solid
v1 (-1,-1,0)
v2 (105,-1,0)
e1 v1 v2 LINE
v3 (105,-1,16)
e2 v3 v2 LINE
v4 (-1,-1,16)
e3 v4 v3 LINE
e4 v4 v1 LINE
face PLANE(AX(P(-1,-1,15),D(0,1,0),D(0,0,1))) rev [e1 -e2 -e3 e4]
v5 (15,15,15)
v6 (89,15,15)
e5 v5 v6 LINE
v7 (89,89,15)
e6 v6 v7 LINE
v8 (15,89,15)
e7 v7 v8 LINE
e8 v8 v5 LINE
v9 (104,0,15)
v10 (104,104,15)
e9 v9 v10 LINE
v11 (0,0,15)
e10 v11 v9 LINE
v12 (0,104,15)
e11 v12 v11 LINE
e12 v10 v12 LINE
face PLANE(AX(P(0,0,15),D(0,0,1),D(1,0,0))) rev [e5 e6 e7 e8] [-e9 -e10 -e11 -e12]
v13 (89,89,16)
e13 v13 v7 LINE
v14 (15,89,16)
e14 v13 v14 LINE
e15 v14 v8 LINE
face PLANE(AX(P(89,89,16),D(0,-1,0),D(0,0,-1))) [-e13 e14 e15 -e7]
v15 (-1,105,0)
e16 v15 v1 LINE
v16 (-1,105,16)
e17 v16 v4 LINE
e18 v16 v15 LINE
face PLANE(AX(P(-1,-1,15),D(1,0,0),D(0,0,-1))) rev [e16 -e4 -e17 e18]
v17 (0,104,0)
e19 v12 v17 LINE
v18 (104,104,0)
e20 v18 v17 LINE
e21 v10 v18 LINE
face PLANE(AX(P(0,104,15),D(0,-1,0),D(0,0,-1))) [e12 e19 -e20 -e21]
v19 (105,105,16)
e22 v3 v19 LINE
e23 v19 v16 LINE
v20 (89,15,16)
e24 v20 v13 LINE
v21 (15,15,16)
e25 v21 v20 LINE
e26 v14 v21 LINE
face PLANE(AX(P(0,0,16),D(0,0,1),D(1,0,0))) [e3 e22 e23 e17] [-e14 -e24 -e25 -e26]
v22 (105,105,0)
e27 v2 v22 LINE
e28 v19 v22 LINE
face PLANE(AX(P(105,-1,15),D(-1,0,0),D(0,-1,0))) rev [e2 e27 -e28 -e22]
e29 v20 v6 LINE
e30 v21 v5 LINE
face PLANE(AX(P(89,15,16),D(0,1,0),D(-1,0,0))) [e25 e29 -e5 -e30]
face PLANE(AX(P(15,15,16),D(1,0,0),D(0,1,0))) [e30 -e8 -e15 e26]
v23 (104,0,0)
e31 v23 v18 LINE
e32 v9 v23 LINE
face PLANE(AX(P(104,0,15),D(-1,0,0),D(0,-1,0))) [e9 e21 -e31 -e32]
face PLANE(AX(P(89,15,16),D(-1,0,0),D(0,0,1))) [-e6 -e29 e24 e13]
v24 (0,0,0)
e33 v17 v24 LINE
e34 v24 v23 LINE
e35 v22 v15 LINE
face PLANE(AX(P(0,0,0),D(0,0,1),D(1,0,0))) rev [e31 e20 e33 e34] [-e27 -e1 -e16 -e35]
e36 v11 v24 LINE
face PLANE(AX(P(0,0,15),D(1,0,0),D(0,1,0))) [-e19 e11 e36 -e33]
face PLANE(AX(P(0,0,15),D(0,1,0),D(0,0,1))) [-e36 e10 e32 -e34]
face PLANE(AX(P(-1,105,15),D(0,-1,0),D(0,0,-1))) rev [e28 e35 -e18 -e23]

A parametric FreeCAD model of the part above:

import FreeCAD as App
import Part
import Sketcher

V = App.Vector
Q = App.Units.Quantity


def add_polygon(sketch, points):
    """Adds a closed chain of lines whose ends are joined by coincident constraints."""
    first, n = sketch.GeometryCount, len(points)
    for a, b in zip(points, points[1:] + points[:1]):
        sketch.addGeometry(Part.LineSegment(App.Vector(*a, 0), App.Vector(*b, 0)), False)
    for i in range(n):
        sketch.addConstraint(Sketcher.Constraint("Coincident", first + i, 2, first + (i + 1) % n, 1))

doc = App.newDocument("Part")
params = doc.addObject("Spreadsheet::Sheet", "Params")
for row, (alias, value) in enumerate([
    ("sketch1_width", "106 mm"),
    ("sketch1_width2", "104 mm"),
    ("pad1_length", "15 mm"),
    ("sketch2_width", "106 mm"),
    ("sketch2_width2", "74 mm"),
    ("pad2_length", "1 mm"),
], start=1):
    params.set(f"A{row}", alias)
    params.set(f"B{row}", "=" + value)
    params.setAlias(f"B{row}", alias)

body = doc.addObject("PartDesign::Body", "Body")

# Sketch on XY plane
sketch1 = body.newObject("Sketcher::SketchObject", "Sketch")
sketch1.AttachmentSupport = (doc.getObject("XY_Plane"), [""])
sketch1.MapMode = "FlatFace"
add_polygon(sketch1, [(-1, 105), (-1, -1), (105, -1), (105, 105)])  # lines 0-3
add_polygon(sketch1, [(104, 0), (0, 0), (0, 104), (104, 104)])  # lines 4-7
sketch1.addConstraint([
    Sketcher.Constraint("Vertical", 0),
    Sketcher.Constraint("Horizontal", 1),
    Sketcher.Constraint("Vertical", 2),
    Sketcher.Constraint("Horizontal", 3),
    Sketcher.Constraint("Horizontal", 4),
    Sketcher.Constraint("Vertical", 5),
    Sketcher.Constraint("Horizontal", 6),
    Sketcher.Constraint("Vertical", 7),
    Sketcher.Constraint("Coincident", 4, 2, -1, 1),
    Sketcher.Constraint("Equal", 3, 0),
    Sketcher.Constraint("Equal", 6, 5),
    Sketcher.Constraint("DistanceX", 1, 1, 1, 2, Q("106 mm")),
    Sketcher.Constraint("DistanceX", 4, 2, 4, 1, Q("104 mm")),
    Sketcher.Constraint("DistanceX", 0, 2, -1, 1, Q("1 mm")),
    Sketcher.Constraint("DistanceY", 0, 2, -1, 1, Q("1 mm")),
])
sketch1.setExpression("Constraints[19]", "Params.sketch1_width")
sketch1.setExpression("Constraints[20]", "Params.sketch1_width2")
pad1 = body.newObject("PartDesign::Pad", "Pad")
pad1.Profile = sketch1
pad1.setExpression("Length", "Params.pad1_length")

# Sketch on XY plane
sketch2 = body.newObject("Sketcher::SketchObject", "Sketch001")
sketch2.AttachmentSupport = (doc.getObject("XY_Plane"), [""])
sketch2.MapMode = "FlatFace"
sketch2.AttachmentOffset = App.Placement(V(0, 0, 15), App.Rotation())
add_polygon(sketch2, [(-1, 105), (-1, -1), (105, -1), (105, 105)])  # lines 0-3
add_polygon(sketch2, [(89, 15), (15, 15), (15, 89), (89, 89)])  # lines 4-7
sketch2.addConstraint([
    Sketcher.Constraint("Vertical", 0),
    Sketcher.Constraint("Horizontal", 1),
    Sketcher.Constraint("Vertical", 2),
    Sketcher.Constraint("Horizontal", 3),
    Sketcher.Constraint("Horizontal", 4),
    Sketcher.Constraint("Vertical", 5),
    Sketcher.Constraint("Horizontal", 6),
    Sketcher.Constraint("Vertical", 7),
    Sketcher.Constraint("Equal", 3, 0),
    Sketcher.Constraint("Equal", 6, 5),
    Sketcher.Constraint("DistanceX", 1, 1, 1, 2, Q("106 mm")),
    Sketcher.Constraint("DistanceX", 4, 2, 4, 1, Q("74 mm")),
    Sketcher.Constraint("DistanceX", 0, 2, -1, 1, Q("1 mm")),
    Sketcher.Constraint("DistanceY", 0, 2, -1, 1, Q("1 mm")),
    Sketcher.Constraint("DistanceX", -1, 1, 4, 2, Q("15 mm")),
    Sketcher.Constraint("DistanceY", -1, 1, 4, 2, Q("15 mm")),
])
sketch2.setExpression("Constraints[18]", "Params.sketch2_width")
sketch2.setExpression("Constraints[19]", "Params.sketch2_width2")
pad2 = body.newObject("PartDesign::Pad", "Pad001")
pad2.Profile = sketch2
pad2.setExpression("Length", "Params.pad2_length")

doc.recompute()
